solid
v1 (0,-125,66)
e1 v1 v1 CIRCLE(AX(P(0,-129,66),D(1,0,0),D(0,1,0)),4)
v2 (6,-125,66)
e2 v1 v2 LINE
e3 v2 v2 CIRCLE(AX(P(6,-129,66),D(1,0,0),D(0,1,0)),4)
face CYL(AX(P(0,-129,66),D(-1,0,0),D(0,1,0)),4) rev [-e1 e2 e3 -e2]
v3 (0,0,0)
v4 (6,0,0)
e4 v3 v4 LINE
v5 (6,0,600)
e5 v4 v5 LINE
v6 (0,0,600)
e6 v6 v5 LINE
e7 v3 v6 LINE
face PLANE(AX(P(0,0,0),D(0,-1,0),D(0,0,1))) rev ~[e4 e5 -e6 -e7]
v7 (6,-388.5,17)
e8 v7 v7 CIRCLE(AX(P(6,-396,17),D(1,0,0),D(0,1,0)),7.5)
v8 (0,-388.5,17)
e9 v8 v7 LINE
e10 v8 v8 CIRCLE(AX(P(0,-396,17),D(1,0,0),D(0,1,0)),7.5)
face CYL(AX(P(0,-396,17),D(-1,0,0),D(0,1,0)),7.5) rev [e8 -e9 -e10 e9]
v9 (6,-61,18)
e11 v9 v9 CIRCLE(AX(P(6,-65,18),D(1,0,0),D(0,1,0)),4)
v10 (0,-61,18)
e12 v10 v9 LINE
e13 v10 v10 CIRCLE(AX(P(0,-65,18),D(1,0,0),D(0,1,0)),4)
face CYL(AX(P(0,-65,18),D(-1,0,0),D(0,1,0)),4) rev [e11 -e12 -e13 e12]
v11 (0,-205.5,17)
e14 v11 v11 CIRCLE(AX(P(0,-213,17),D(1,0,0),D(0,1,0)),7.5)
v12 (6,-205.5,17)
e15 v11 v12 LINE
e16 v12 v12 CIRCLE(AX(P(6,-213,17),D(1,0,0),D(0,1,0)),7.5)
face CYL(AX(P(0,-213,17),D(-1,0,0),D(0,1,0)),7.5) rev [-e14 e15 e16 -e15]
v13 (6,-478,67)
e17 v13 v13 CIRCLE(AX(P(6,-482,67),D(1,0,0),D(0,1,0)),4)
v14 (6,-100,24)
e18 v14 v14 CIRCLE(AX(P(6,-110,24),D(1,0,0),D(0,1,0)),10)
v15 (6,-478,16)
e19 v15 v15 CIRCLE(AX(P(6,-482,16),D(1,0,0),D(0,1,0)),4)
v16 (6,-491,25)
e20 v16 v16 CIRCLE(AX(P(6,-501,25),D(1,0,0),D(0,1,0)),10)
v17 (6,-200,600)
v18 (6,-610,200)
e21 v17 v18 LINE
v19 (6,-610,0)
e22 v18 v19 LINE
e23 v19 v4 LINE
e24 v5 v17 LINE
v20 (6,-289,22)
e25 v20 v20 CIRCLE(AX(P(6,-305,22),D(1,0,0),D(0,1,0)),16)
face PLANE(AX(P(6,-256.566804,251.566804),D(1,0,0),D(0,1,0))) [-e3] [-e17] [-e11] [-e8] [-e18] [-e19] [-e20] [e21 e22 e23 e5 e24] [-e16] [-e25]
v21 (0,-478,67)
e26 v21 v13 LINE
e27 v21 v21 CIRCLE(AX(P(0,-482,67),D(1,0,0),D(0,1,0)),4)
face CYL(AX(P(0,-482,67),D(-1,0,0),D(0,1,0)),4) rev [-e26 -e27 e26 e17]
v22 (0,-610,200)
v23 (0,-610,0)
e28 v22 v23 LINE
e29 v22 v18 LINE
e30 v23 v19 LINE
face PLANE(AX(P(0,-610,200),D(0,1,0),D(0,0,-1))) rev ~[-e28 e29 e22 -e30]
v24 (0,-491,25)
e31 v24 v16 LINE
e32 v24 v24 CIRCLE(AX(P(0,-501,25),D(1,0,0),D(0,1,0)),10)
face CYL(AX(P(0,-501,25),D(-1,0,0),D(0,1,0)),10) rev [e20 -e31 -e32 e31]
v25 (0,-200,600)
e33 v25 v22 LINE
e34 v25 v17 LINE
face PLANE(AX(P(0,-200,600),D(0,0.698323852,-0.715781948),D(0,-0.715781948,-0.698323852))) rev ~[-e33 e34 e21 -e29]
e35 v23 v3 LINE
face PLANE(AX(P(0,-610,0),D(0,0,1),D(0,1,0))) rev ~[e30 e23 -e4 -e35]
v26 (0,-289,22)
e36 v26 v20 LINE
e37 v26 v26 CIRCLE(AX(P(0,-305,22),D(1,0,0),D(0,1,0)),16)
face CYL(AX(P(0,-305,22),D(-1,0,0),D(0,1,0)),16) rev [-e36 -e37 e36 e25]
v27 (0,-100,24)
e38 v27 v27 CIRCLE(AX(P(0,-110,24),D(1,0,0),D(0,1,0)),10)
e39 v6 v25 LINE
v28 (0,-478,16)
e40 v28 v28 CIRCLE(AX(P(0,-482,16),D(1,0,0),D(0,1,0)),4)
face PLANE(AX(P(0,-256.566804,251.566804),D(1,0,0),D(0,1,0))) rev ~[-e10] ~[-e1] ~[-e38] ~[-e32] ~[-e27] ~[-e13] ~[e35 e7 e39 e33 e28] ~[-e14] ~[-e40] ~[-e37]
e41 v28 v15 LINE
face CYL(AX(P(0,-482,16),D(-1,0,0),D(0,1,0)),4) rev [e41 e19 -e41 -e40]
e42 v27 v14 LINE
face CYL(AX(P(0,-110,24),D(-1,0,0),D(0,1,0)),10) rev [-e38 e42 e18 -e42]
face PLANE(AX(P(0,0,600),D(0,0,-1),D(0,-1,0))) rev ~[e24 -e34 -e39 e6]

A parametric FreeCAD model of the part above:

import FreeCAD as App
import Part
import Sketcher

V = App.Vector
Q = App.Units.Quantity


def add_polygon(sketch, points):
    """Adds a closed chain of lines whose ends are joined by coincident constraints."""
    first, n = sketch.GeometryCount, len(points)
    for a, b in zip(points, points[1:] + points[:1]):
        sketch.addGeometry(Part.LineSegment(App.Vector(*a, 0), App.Vector(*b, 0)), False)
    for i in range(n):
        sketch.addConstraint(Sketcher.Constraint("Coincident", first + i, 2, first + (i + 1) % n, 1))

doc = App.newDocument("Part")
body = doc.addObject("PartDesign::Body", "Body")

sketch1 = doc.addObject("Sketcher::SketchObject", "Sketch")
body.addObject(sketch1)
sketch1.AttachmentSupport = (doc.YZ_Plane, [""])
sketch1.MapMode = "FlatFace"
add_polygon(sketch1, [(0, 0), (0, 600), (-200, 600), (-610, 200), (-610, 0)])
sketch1.addGeometry(Part.Circle(V(-482, 16, 0), V(0, 0, 1), 4), False)
sketch1.addGeometry(Part.Circle(V(-396, 17, 0), V(0, 0, 1), 7.5), False)
sketch1.addGeometry(Part.Circle(V(-305, 22, 0), V(0, 0, 1), 16), False)
sketch1.addGeometry(Part.Circle(V(-501, 25, 0), V(0, 0, 1), 10), False)
sketch1.addGeometry(Part.Circle(V(-213, 17, 0), V(0, 0, 1), 7.5), False)
sketch1.addGeometry(Part.Circle(V(-65, 18, 0), V(0, 0, 1), 4), False)
sketch1.addGeometry(Part.Circle(V(-110, 24, 0), V(0, 0, 1), 10), False)
sketch1.addGeometry(Part.Circle(V(-482, 67, 0), V(0, 0, 1), 4), False)
sketch1.addGeometry(Part.Circle(V(-129, 66, 0), V(0, 0, 1), 4), False)
sketch1.addConstraint(Sketcher.Constraint("Vertical", 0))
sketch1.addConstraint(Sketcher.Constraint("Horizontal", 1))
sketch1.addConstraint(Sketcher.Constraint("Vertical", 3))
sketch1.addConstraint(Sketcher.Constraint("Horizontal", 4))
sketch1.addConstraint(Sketcher.Constraint("Coincident", 4, 2, -1, 1))
sketch1.addConstraint(Sketcher.Constraint("Equal", 6, 9))
sketch1.addConstraint(Sketcher.Constraint("Equal", 5, 10))
sketch1.addConstraint(Sketcher.Constraint("Equal", 8, 11))
sketch1.addConstraint(Sketcher.Constraint("Equal", 10, 12))
sketch1.addConstraint(Sketcher.Constraint("Equal", 12, 13))
sketch1.addConstraint(Sketcher.Constraint("Horizontal", 6, 3, 9, 3))
sketch1.addConstraint(Sketcher.Constraint("Vertical", 5, 3, 12, 3))
sketch1.addConstraint(Sketcher.Constraint("Equal", 1, 3))
sketch1.addConstraint(Sketcher.Constraint("Diameter", 5, Q("8 mm")))
sketch1.addConstraint(Sketcher.Constraint("Diameter", 6, Q("15 mm")))
sketch1.addConstraint(Sketcher.Constraint("Diameter", 7, Q("32 mm")))
sketch1.addConstraint(Sketcher.Constraint("Diameter", 8, Q("20 mm")))
sketch1.addConstraint(Sketcher.Constraint("DistanceX", 1, 2, 1, 1, Q("200 mm")))
sketch1.addConstraint(Sketcher.Constraint("DistanceX", 4, 1, 4, 2, Q("610 mm")))
sketch1.addConstraint(Sketcher.Constraint("DistanceY", 0, 1, 0, 2, Q("600 mm")))
sketch1.addConstraint(Sketcher.Constraint("DistanceX", 5, 3, -1, 1, Q("482 mm")))
sketch1.addConstraint(Sketcher.Constraint("DistanceY", -1, 1, 5, 3, Q("16 mm")))
sketch1.addConstraint(Sketcher.Constraint("DistanceX", 6, 3, -1, 1, Q("396 mm")))
sketch1.addConstraint(Sketcher.Constraint("DistanceY", -1, 1, 6, 3, Q("17 mm")))
sketch1.addConstraint(Sketcher.Constraint("DistanceX", 7, 3, -1, 1, Q("305 mm")))
sketch1.addConstraint(Sketcher.Constraint("DistanceY", -1, 1, 7, 3, Q("22 mm")))
sketch1.addConstraint(Sketcher.Constraint("DistanceX", 8, 3, -1, 1, Q("501 mm")))
sketch1.addConstraint(Sketcher.Constraint("DistanceY", -1, 1, 8, 3, Q("25 mm")))
sketch1.addConstraint(Sketcher.Constraint("DistanceX", 9, 3, -1, 1, Q("213 mm")))
sketch1.addConstraint(Sketcher.Constraint("DistanceX", 10, 3, -1, 1, Q("65 mm")))
sketch1.addConstraint(Sketcher.Constraint("DistanceY", -1, 1, 10, 3, Q("18 mm")))
sketch1.addConstraint(Sketcher.Constraint("DistanceX", 11, 3, -1, 1, Q("110 mm")))
sketch1.addConstraint(Sketcher.Constraint("DistanceY", -1, 1, 11, 3, Q("24 mm")))
sketch1.addConstraint(Sketcher.Constraint("DistanceY", -1, 1, 12, 3, Q("67 mm")))
sketch1.addConstraint(Sketcher.Constraint("DistanceX", 13, 3, -1, 1, Q("129 mm")))
sketch1.addConstraint(Sketcher.Constraint("DistanceY", -1, 1, 13, 3, Q("66 mm")))
pad1 = doc.addObject("PartDesign::Pad", "Pad")
body.addObject(pad1)
pad1.Profile = sketch1
pad1.Length = 6

doc.recompute()
